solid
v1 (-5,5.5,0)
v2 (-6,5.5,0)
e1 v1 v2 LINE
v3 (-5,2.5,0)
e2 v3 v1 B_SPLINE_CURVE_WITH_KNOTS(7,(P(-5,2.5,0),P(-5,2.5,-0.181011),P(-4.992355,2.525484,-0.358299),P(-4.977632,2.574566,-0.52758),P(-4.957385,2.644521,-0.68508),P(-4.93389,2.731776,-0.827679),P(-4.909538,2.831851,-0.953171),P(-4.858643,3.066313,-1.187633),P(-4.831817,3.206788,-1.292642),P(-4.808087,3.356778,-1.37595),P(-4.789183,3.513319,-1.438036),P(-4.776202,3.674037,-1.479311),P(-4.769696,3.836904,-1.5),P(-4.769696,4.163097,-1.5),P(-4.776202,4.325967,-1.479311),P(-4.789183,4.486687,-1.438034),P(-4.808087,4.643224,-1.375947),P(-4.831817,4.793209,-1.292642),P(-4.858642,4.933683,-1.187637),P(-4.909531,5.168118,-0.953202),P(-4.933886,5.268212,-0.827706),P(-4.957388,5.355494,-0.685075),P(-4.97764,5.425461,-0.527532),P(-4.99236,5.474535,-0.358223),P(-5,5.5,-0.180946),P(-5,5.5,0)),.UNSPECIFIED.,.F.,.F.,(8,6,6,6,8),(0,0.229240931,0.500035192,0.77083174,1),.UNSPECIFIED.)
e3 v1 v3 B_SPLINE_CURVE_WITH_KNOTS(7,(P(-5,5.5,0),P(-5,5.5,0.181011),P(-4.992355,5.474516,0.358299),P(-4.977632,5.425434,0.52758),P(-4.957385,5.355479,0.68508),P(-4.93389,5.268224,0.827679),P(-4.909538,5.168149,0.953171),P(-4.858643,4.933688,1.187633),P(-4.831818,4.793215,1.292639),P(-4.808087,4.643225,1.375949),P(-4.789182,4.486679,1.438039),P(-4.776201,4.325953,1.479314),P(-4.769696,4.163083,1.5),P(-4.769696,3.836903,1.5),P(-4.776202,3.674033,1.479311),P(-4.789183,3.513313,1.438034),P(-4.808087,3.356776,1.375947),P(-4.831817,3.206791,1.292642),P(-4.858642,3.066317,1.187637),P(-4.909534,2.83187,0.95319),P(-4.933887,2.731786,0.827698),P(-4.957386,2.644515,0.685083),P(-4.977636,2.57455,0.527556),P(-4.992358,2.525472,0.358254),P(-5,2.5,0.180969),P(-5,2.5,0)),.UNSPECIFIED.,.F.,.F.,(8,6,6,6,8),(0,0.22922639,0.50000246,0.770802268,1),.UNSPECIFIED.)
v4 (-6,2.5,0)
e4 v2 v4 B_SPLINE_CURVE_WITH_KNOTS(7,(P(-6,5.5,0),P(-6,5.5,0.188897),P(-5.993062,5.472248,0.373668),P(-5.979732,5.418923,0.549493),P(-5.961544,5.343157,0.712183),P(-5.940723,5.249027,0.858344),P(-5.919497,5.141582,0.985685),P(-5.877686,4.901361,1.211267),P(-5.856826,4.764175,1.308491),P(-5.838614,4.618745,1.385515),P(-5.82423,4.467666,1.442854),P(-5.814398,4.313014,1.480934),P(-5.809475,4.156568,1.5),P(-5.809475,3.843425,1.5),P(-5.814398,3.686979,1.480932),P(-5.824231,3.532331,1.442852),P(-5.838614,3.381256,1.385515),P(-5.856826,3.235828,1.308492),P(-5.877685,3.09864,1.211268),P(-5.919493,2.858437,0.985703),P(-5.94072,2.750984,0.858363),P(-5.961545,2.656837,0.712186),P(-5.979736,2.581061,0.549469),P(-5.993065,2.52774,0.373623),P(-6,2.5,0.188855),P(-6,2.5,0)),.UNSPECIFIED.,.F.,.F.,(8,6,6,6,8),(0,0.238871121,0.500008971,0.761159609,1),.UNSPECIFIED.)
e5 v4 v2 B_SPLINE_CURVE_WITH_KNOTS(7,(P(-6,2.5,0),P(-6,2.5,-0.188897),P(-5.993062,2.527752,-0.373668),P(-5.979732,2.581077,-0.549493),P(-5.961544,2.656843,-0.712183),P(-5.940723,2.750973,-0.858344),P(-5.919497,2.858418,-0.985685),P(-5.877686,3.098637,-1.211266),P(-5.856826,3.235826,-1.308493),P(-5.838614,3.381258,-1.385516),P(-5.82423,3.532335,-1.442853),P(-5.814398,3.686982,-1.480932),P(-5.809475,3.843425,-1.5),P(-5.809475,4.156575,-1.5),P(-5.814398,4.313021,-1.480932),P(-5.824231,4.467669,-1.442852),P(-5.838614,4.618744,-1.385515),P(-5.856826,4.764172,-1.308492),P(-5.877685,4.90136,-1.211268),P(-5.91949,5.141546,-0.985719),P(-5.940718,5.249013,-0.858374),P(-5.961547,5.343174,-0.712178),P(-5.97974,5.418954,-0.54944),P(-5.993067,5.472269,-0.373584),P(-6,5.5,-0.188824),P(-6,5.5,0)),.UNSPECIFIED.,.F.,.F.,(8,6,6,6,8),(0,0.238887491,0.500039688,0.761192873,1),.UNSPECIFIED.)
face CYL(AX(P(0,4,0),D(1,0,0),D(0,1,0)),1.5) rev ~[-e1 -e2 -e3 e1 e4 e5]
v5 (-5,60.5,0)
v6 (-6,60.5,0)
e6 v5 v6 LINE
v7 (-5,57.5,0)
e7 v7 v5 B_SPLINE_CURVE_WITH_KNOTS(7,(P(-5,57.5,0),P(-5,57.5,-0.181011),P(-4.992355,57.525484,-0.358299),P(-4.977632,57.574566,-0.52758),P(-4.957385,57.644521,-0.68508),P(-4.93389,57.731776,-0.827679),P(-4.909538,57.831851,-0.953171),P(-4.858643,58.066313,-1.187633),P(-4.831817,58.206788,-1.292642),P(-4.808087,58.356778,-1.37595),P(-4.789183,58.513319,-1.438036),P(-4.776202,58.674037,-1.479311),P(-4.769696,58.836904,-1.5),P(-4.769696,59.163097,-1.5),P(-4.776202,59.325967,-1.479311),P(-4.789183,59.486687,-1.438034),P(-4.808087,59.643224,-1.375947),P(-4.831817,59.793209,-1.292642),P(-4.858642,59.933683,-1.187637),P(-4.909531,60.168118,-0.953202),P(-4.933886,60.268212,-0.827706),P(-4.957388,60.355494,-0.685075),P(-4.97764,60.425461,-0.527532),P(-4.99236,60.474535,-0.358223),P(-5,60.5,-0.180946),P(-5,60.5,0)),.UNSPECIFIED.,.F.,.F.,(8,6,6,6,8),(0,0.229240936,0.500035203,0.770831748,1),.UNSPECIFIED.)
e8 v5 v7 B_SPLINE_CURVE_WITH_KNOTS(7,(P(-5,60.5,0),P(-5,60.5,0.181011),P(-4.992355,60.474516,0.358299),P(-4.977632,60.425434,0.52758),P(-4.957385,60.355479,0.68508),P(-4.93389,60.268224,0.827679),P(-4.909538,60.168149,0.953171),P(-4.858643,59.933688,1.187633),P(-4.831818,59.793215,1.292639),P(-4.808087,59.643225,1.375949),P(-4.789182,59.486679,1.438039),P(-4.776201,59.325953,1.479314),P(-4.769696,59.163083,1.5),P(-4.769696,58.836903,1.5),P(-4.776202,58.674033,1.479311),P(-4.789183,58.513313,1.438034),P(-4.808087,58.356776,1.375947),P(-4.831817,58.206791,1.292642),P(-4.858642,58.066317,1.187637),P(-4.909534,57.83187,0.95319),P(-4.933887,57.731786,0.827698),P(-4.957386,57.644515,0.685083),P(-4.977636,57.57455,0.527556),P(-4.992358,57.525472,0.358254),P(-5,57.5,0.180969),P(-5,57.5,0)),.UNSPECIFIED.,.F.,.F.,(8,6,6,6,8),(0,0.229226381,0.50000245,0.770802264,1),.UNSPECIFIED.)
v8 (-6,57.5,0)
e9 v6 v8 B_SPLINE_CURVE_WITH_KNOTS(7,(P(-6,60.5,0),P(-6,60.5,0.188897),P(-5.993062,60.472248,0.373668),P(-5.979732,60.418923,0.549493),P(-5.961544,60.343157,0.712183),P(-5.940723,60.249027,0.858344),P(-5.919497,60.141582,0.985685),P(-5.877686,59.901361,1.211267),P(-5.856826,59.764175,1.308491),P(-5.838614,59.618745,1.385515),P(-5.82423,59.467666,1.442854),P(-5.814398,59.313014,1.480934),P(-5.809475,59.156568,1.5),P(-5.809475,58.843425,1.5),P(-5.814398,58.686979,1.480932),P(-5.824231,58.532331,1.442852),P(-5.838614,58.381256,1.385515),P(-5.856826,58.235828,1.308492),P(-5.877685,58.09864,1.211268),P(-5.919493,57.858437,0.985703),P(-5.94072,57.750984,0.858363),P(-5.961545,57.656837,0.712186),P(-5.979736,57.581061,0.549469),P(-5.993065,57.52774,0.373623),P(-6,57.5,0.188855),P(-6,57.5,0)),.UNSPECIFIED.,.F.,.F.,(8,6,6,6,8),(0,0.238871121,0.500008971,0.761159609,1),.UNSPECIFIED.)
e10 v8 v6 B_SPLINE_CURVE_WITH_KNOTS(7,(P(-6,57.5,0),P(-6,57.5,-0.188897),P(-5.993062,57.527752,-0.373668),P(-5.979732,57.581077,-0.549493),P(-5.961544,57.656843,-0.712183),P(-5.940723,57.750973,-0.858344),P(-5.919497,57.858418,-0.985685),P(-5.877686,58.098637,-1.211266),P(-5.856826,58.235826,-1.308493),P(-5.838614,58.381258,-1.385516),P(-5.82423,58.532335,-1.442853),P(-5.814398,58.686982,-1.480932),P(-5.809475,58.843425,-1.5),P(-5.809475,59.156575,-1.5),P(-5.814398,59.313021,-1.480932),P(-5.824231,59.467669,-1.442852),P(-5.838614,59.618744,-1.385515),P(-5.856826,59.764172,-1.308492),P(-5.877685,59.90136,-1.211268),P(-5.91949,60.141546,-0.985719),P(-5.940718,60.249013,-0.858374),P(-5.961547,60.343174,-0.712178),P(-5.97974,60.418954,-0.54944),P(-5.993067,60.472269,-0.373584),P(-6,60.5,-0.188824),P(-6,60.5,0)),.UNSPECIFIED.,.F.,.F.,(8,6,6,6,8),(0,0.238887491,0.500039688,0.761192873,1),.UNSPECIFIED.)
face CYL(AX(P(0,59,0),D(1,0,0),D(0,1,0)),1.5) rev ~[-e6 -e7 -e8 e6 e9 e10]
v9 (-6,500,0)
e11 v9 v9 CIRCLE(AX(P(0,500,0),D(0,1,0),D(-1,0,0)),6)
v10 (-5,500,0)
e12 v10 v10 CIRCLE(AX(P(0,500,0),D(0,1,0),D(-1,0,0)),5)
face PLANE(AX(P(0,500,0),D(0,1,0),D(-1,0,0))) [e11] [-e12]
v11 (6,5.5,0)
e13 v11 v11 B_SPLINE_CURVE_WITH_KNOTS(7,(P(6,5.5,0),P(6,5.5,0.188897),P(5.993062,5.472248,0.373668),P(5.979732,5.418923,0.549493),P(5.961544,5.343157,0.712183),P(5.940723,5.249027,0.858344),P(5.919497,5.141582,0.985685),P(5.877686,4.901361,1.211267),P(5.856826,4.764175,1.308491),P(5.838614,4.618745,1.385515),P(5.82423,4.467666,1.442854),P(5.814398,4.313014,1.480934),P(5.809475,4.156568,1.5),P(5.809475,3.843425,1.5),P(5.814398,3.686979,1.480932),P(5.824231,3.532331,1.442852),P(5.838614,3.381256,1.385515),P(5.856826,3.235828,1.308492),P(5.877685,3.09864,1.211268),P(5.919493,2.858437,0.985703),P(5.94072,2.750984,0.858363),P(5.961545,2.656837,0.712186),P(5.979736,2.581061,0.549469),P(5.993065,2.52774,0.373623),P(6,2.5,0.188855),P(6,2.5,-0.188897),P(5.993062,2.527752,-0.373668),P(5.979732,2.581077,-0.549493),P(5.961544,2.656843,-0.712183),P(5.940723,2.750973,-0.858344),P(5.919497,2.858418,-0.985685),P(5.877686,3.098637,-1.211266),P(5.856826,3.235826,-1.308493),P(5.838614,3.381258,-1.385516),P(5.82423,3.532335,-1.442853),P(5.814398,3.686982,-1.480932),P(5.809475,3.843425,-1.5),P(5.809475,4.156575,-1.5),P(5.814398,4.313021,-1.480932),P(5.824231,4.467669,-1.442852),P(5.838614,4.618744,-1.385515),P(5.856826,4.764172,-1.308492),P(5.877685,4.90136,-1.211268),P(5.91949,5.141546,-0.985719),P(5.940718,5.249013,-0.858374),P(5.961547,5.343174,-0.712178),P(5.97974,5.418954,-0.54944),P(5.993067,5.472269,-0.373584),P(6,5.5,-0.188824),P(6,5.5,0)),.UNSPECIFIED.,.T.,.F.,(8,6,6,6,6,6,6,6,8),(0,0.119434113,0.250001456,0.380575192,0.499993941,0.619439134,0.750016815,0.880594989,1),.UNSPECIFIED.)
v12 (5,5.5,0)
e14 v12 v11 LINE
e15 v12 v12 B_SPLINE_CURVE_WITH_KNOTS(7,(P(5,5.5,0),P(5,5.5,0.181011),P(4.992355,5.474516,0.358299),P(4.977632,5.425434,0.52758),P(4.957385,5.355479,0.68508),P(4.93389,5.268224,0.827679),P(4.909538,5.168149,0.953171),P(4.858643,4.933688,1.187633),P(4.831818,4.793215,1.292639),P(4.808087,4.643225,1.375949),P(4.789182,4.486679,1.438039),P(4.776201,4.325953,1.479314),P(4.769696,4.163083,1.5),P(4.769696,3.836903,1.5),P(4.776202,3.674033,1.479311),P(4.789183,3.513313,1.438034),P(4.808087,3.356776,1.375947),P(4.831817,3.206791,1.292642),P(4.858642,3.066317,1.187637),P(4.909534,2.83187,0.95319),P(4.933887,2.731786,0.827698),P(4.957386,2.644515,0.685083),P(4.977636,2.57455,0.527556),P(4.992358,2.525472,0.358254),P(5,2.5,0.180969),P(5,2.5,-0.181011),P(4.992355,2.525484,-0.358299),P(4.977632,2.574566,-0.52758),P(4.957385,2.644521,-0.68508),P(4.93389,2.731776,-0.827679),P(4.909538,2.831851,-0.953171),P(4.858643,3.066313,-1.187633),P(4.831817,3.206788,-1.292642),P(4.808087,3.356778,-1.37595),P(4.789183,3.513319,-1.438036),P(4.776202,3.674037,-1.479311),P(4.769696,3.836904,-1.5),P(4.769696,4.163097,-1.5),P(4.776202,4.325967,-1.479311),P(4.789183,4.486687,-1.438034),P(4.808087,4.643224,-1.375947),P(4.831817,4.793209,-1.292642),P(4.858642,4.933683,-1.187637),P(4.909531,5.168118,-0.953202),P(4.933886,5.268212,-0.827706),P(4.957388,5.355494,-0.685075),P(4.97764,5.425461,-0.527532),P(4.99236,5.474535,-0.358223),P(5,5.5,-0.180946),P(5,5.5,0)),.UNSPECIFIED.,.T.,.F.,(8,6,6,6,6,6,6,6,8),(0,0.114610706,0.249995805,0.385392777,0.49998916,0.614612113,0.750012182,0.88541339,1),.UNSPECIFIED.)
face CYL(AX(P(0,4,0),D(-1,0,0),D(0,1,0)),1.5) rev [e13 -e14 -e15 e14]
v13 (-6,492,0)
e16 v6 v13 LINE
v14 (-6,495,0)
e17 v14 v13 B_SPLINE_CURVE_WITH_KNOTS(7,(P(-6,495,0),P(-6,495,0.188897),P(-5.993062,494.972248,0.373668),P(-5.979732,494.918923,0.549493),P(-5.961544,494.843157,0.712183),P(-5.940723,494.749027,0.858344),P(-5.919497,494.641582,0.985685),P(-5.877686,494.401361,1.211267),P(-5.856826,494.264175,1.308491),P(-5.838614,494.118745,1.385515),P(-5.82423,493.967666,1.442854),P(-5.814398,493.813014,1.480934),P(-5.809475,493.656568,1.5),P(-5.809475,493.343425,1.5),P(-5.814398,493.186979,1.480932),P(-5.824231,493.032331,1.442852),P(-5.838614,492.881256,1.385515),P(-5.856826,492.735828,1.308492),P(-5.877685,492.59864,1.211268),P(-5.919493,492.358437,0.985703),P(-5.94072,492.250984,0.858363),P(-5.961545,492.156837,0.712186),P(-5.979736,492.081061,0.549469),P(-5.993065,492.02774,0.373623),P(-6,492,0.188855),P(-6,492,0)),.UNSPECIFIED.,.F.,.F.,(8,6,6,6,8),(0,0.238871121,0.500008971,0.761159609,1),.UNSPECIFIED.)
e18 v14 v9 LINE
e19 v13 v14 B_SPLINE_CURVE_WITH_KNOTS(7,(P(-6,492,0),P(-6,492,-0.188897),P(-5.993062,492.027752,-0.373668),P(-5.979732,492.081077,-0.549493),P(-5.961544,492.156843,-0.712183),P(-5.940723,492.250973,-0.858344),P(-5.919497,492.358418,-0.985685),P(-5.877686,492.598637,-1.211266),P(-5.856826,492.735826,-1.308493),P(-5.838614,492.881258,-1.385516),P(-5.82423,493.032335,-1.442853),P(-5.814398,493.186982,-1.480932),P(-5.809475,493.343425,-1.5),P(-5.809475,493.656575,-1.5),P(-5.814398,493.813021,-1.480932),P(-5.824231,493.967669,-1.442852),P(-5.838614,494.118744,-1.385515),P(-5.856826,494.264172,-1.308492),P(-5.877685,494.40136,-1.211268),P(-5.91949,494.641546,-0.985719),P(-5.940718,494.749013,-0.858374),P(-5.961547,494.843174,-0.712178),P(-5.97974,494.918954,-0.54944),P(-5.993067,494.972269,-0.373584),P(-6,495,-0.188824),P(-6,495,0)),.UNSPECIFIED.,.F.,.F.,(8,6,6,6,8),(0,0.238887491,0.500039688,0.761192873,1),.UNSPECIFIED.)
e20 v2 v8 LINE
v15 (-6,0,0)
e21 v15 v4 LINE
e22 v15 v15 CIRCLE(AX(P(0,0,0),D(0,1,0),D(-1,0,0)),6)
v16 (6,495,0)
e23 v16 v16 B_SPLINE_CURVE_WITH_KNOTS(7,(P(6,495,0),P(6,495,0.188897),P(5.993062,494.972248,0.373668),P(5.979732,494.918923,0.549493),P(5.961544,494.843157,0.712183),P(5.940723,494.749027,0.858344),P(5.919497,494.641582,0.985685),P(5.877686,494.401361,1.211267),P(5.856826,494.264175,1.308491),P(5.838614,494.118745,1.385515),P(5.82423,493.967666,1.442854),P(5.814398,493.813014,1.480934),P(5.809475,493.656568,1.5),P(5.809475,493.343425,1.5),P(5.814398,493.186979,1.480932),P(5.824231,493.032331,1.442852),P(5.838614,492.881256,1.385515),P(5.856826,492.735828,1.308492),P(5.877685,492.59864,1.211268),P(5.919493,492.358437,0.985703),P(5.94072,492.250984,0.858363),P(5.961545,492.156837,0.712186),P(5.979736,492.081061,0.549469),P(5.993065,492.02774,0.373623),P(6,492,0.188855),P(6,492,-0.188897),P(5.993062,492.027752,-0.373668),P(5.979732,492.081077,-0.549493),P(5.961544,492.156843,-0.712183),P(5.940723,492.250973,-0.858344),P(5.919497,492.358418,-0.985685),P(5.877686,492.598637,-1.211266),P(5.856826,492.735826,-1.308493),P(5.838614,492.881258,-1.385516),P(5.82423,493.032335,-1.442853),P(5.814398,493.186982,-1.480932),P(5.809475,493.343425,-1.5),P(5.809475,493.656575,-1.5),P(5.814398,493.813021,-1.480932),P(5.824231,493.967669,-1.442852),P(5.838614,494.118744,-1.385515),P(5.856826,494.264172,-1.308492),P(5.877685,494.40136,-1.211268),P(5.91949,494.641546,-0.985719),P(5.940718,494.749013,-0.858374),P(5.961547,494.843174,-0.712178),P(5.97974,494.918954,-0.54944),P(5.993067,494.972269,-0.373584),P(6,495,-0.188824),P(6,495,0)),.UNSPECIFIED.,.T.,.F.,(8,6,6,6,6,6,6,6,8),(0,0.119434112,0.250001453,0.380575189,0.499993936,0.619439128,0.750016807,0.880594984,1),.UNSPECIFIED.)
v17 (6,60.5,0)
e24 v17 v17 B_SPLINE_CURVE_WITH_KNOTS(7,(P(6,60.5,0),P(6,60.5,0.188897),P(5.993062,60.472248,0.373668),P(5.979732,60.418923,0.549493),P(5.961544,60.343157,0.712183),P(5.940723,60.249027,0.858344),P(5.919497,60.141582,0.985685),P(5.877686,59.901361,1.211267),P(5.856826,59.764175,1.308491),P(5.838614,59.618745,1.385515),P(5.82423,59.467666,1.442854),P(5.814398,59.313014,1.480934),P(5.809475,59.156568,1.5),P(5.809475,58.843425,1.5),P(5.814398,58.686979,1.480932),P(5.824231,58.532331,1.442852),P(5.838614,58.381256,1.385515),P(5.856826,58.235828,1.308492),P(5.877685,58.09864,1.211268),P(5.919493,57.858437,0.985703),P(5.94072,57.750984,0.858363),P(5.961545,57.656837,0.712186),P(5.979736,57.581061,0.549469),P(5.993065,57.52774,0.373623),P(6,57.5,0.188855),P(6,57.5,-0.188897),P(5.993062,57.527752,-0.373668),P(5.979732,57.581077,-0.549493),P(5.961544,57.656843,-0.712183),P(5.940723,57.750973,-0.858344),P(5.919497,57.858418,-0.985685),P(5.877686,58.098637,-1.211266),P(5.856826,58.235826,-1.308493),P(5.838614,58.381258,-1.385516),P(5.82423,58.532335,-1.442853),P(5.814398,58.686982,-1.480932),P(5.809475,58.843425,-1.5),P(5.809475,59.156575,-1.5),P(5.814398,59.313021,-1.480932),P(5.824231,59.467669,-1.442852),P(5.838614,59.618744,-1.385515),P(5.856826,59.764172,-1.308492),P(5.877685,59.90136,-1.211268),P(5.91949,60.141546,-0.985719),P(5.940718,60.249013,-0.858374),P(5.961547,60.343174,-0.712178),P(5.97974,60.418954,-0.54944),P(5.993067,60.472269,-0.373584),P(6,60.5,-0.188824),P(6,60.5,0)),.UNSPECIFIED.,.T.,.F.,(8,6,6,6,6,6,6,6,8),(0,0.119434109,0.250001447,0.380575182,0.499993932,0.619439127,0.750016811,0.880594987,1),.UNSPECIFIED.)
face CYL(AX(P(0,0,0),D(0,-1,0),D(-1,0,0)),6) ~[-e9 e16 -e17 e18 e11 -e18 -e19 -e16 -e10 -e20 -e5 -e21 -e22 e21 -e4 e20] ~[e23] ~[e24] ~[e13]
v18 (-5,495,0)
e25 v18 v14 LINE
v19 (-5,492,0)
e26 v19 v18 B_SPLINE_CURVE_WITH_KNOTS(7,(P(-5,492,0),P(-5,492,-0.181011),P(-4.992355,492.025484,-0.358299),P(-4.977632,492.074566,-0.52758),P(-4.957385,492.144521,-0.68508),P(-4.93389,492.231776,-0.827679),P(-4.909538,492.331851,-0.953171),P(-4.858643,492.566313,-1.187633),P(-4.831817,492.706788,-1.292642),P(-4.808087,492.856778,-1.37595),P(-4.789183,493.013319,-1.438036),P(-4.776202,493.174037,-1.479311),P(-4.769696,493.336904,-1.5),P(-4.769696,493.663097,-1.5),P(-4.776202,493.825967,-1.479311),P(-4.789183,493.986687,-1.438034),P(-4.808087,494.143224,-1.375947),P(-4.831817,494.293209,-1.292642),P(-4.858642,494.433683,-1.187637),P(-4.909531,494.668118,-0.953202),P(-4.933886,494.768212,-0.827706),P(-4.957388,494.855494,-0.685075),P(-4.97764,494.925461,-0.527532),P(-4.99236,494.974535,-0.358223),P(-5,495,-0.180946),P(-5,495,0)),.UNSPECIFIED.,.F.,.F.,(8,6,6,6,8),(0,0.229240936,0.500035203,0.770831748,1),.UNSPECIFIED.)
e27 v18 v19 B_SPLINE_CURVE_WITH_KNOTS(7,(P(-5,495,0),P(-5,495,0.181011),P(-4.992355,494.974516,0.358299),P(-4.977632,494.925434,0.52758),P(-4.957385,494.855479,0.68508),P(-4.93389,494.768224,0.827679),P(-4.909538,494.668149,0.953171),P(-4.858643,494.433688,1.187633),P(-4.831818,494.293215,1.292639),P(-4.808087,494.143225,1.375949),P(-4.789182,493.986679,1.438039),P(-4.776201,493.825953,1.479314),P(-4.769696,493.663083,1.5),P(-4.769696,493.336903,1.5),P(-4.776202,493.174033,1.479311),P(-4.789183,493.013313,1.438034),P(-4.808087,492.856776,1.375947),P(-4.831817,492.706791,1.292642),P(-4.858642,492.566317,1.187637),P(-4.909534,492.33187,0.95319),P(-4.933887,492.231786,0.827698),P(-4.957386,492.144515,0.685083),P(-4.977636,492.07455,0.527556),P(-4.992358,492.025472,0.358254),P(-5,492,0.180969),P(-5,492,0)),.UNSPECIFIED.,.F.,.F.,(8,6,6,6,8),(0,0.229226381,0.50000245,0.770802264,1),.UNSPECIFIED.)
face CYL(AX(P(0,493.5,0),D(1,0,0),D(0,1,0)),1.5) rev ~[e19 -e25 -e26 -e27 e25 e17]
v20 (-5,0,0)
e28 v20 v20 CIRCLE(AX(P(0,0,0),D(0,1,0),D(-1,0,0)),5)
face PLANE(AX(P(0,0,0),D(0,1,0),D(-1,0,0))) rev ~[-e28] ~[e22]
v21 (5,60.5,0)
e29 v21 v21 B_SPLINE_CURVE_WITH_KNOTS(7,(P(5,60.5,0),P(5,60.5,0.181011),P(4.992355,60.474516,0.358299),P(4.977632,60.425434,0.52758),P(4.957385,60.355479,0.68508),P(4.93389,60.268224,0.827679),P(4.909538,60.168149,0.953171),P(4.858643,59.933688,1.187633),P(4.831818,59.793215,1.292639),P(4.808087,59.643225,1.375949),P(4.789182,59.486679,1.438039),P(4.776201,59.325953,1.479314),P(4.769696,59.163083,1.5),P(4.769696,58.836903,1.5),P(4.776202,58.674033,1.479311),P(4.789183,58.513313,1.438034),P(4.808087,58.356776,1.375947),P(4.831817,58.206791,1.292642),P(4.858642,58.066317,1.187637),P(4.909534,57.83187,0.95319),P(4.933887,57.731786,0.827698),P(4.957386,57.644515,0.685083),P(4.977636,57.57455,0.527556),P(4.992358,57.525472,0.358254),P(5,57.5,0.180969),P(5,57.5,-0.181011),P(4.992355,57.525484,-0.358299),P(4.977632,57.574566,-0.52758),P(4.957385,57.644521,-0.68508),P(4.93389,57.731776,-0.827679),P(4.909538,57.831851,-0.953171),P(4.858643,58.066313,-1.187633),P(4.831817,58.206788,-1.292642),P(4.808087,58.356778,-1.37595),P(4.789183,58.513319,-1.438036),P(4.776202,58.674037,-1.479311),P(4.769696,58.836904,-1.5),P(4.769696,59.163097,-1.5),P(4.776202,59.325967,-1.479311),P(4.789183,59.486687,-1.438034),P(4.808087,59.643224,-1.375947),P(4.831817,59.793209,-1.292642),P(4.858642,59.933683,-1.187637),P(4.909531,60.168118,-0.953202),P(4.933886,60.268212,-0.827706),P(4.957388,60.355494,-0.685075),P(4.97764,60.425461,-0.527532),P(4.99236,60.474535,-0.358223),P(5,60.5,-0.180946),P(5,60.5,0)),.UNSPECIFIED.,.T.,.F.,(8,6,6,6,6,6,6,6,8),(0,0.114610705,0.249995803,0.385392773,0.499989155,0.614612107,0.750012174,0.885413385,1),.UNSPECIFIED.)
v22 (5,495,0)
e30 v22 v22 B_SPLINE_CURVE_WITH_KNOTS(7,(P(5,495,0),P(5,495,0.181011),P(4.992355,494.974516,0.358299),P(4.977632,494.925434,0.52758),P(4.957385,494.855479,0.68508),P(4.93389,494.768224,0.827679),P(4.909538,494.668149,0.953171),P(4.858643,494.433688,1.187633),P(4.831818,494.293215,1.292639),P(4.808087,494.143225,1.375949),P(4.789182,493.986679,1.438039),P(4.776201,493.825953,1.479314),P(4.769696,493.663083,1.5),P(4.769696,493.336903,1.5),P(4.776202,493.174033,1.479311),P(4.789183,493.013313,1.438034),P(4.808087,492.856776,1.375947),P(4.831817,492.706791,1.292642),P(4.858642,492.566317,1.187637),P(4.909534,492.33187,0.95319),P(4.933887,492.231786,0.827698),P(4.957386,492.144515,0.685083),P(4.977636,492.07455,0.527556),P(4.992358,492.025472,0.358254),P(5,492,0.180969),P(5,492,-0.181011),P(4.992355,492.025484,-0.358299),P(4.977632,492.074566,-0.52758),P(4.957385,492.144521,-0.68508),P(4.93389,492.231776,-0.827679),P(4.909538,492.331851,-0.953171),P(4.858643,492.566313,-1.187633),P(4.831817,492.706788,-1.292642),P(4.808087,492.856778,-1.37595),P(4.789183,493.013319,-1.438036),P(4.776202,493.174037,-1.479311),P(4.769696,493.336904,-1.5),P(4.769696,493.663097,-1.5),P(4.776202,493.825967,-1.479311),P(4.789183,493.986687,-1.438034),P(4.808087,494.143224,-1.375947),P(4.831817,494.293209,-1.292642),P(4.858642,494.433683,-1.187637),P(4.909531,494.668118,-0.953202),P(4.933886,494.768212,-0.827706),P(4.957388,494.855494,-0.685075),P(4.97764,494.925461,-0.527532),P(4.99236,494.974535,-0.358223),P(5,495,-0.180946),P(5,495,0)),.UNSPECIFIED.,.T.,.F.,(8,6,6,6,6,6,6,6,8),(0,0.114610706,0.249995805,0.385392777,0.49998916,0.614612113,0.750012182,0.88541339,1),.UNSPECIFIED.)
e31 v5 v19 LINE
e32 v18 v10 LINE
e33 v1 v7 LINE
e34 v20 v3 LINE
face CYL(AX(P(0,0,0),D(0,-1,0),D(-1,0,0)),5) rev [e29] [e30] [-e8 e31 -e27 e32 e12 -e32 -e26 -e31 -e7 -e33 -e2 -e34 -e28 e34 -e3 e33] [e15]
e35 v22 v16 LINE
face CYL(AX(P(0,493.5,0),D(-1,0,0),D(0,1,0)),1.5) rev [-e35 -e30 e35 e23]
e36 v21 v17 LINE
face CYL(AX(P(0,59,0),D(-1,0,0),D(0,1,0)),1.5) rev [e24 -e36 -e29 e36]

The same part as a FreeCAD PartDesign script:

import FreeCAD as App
import Part
import Sketcher

V = App.Vector

doc = App.newDocument("Part")
body = doc.addObject("PartDesign::Body", "Body")

sketch1 = body.newObject("Sketcher::SketchObject", "Sketch")
sketch1.AttachmentSupport = (doc.getObject("XZ_Plane"), [""])
sketch1.MapMode = "FlatFace"
sketch1.addGeometry([
    Part.Circle(V(0, 0, 0), V(0, 0, 1), 6),
    Part.Circle(V(0, 0, 0), V(0, 0, 1), 5),
], False)
sketch1.addConstraint([
    Sketcher.Constraint("Coincident", 0, 3, -1, 1),
    Sketcher.Constraint("Coincident", 1, 3, -1, 1),
    Sketcher.Constraint("Diameter", 0, 12.0),
    Sketcher.Constraint("Diameter", 1, 10.0),
])
pad1 = body.newObject("PartDesign::Pad", "Pad")
pad1.Profile = sketch1
pad1.Length = 500
pad1.Reversed = True

sketch2 = body.newObject("Sketcher::SketchObject", "Sketch001")
sketch2.AttachmentSupport = (doc.getObject("YZ_Plane"), [""])
sketch2.MapMode = "FlatFace"
sketch2.addGeometry([
    Part.Circle(V(4, 0, 0), V(0, 0, 1), 1.5),
    Part.Circle(V(59, 0, 0), V(0, 0, 1), 1.5),
    Part.Circle(V(493.5, 0, 0), V(0, 0, 1), 1.5),
], False)
sketch2.addConstraint([
    Sketcher.Constraint("Equal", 0, 1),
    Sketcher.Constraint("Equal", 1, 2),
    Sketcher.Constraint("PointOnObject", 0, 3, -1),
    Sketcher.Constraint("PointOnObject", 1, 3, -1),
    Sketcher.Constraint("PointOnObject", 2, 3, -1),
    Sketcher.Constraint("Diameter", 0, 3.0),
    Sketcher.Constraint("DistanceX", -1, 1, 0, 3, 4.0),
    Sketcher.Constraint("DistanceX", 0, 3, 1, 3, 55.0),
    Sketcher.Constraint("DistanceX", -1, 1, 2, 3, 493.5),
])
pocket1 = body.newObject("PartDesign::Pocket", "Pocket")
pocket1.Profile = sketch2
pocket1.Length = 320
pocket1.Midplane = True

doc.recompute()
